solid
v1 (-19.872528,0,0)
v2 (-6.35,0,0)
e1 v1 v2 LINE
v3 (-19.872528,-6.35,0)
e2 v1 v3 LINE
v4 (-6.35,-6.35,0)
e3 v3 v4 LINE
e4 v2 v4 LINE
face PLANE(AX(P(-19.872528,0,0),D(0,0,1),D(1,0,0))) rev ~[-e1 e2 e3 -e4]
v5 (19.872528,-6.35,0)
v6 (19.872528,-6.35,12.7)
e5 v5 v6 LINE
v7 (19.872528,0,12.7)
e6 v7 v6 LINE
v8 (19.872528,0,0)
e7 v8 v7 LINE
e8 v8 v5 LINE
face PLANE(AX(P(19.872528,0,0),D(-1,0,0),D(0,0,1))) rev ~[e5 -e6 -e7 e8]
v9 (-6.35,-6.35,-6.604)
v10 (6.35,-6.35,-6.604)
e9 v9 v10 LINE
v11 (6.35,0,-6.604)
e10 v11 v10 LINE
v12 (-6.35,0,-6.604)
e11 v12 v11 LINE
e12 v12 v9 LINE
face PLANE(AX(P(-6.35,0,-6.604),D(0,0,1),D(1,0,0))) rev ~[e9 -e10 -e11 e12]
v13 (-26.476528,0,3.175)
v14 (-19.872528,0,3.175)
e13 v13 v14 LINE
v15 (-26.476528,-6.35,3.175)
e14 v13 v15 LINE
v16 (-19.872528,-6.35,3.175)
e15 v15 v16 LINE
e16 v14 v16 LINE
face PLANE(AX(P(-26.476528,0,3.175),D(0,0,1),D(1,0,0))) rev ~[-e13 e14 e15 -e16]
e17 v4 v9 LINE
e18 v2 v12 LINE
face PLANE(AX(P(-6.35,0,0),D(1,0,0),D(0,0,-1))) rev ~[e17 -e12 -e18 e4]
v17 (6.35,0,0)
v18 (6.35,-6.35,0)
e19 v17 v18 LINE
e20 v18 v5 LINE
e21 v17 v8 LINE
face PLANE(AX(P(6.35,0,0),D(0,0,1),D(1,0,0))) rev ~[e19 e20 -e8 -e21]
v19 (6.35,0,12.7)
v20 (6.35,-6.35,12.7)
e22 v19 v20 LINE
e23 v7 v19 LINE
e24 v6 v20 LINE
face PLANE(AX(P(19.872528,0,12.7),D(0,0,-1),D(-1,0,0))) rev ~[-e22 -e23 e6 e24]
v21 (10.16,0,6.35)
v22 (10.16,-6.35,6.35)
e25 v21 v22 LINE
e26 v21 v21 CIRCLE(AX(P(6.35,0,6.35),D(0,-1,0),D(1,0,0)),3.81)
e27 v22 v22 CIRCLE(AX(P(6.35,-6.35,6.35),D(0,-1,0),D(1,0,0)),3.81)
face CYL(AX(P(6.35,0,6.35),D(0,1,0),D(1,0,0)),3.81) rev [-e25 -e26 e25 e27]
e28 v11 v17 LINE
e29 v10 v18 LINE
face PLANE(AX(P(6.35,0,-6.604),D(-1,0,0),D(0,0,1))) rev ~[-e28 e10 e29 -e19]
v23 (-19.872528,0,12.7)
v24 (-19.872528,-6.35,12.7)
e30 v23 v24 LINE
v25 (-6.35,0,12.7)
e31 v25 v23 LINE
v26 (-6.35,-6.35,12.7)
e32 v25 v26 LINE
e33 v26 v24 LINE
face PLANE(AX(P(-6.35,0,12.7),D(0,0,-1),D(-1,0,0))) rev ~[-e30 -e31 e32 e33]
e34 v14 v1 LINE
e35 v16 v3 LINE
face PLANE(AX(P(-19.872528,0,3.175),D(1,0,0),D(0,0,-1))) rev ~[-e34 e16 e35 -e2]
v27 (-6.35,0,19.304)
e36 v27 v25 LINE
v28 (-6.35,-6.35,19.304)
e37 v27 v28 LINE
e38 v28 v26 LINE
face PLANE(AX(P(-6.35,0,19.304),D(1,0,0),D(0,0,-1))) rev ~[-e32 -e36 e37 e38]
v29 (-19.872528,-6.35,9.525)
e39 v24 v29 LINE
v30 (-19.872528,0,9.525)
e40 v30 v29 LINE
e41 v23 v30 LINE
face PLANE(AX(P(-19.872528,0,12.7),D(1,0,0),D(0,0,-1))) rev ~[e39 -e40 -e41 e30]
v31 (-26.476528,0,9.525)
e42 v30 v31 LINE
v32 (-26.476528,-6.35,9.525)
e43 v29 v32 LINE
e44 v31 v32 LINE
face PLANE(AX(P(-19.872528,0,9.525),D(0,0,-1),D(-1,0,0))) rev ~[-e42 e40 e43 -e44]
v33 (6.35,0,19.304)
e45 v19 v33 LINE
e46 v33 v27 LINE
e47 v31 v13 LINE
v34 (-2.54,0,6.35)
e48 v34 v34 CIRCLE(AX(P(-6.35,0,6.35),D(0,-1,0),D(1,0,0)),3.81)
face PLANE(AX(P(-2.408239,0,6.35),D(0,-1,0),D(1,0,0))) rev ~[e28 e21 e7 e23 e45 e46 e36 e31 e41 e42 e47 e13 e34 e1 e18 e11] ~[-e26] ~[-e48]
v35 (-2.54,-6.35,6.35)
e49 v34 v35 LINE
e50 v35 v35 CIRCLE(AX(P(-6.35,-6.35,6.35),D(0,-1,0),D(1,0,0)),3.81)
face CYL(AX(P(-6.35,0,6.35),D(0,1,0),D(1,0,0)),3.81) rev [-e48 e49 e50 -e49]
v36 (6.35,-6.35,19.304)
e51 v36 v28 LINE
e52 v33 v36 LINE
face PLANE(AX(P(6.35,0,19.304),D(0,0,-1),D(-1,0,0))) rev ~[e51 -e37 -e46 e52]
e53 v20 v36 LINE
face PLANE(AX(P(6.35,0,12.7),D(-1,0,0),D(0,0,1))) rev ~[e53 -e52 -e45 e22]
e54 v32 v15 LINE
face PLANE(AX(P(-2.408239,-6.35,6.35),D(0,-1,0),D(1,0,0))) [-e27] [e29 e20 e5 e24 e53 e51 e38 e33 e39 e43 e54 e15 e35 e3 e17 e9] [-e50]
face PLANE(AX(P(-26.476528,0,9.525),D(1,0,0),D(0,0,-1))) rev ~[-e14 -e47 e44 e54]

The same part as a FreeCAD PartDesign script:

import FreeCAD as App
import Part
import Sketcher
Q = App.Units.Quantity


def add_polygon(sketch, points):
    """Adds a closed chain of lines whose ends are joined by coincident constraints."""
    first, n = sketch.GeometryCount, len(points)
    for a, b in zip(points, points[1:] + points[:1]):
        sketch.addGeometry(Part.LineSegment(App.Vector(*a, 0), App.Vector(*b, 0)), False)
    for i in range(n):
        sketch.addConstraint(Sketcher.Constraint("Coincident", first + i, 2, first + (i + 1) % n, 1))

doc = App.newDocument("Part")
body = doc.addObject("PartDesign::Body", "Body")

# Sketch on XZ plane
sketch1 = body.newObject("Sketcher::SketchObject", "Sketch")
sketch1.AttachmentSupport = (doc.getObject("XZ_Plane"), [""])
sketch1.MapMode = "FlatFace"
add_polygon(sketch1, [(-19.872528, 0), (-6.35, 0), (-6.35, -6.604), (6.35, -6.604), (6.35, 0), (19.872528, 0), (19.872528, 12.7), (6.35, 12.7), (6.35, 19.304), (-6.35, 19.304), (-6.35, 12.7), (-19.872528, 12.7), (-19.872528, 9.525), (-26.476528, 9.525), (-26.476528, 3.175), (-19.872528, 3.175)])  # lines 0-15
sketch1.addGeometry(Part.Circle(App.Vector(-6.35, 6.35, 0), App.Vector(0, 0, 1), 3.81), False)  # 16
sketch1.addGeometry(Part.Circle(App.Vector(6.35, 6.35, 0), App.Vector(0, 0, 1), 3.81), False)  # 17
sketch1.addConstraint(Sketcher.Constraint("Horizontal", 0))
sketch1.addConstraint(Sketcher.Constraint("Vertical", 1))
sketch1.addConstraint(Sketcher.Constraint("Horizontal", 2))
sketch1.addConstraint(Sketcher.Constraint("Vertical", 3))
sketch1.addConstraint(Sketcher.Constraint("Horizontal", 4))
sketch1.addConstraint(Sketcher.Constraint("Vertical", 5))
sketch1.addConstraint(Sketcher.Constraint("Horizontal", 6))
sketch1.addConstraint(Sketcher.Constraint("Vertical", 7))
sketch1.addConstraint(Sketcher.Constraint("Horizontal", 8))
sketch1.addConstraint(Sketcher.Constraint("Vertical", 9))
sketch1.addConstraint(Sketcher.Constraint("Horizontal", 10))
sketch1.addConstraint(Sketcher.Constraint("Vertical", 11))
sketch1.addConstraint(Sketcher.Constraint("Horizontal", 12))
sketch1.addConstraint(Sketcher.Constraint("Vertical", 13))
sketch1.addConstraint(Sketcher.Constraint("Horizontal", 14))
sketch1.addConstraint(Sketcher.Constraint("Vertical", 15))
sketch1.addConstraint(Sketcher.Constraint("Equal", 16, 17))
sketch1.addConstraint(Sketcher.Constraint("Symmetric", 0, 2, 3, 2, -1, 1))
sketch1.addConstraint(Sketcher.Constraint("Symmetric", 16, 3, 17, 3, -2))
sketch1.addConstraint(Sketcher.Constraint("Symmetric", 6, 2, 9, 2, -2))
sketch1.addConstraint(Sketcher.Constraint("Symmetric", 4, 2, 15, 2, -2))
sketch1.addConstraint(Sketcher.Constraint("Vertical", 16, 3, 0, 2))
sketch1.addConstraint(Sketcher.Constraint("Vertical", 3, 2, 6, 2))
sketch1.addConstraint(Sketcher.Constraint("Vertical", 11, 2, 14, 2))
sketch1.addConstraint(Sketcher.Constraint("Equal", 14, 1))
sketch1.addConstraint(Sketcher.Constraint("Equal", 8, 5))
sketch1.addConstraint(Sketcher.Constraint("Equal", 3, 7))
sketch1.addConstraint(Sketcher.Constraint("Equal", 11, 15))
sketch1.addConstraint(Sketcher.Constraint("Diameter", 16, Q("0.3 in")))
sketch1.addConstraint(Sketcher.Constraint("DistanceX", 2, 1, 2, 2, Q("0.5 in")))
sketch1.addConstraint(Sketcher.Constraint("DistanceX", 12, 2, 12, 1, Q("0.26 in")))
sketch1.addConstraint(Sketcher.Constraint("DistanceY", 13, 2, 13, 1, Q("0.25 in")))
sketch1.addConstraint(Sketcher.Constraint("DistanceY", -1, 1, 16, 3, Q("0.25 in")))
sketch1.addConstraint(Sketcher.Constraint("DistanceX", 0, 1, 0, 2, Q("13.522528 mm")))
pad1 = body.newObject("PartDesign::Pad", "Pad")
pad1.Profile = sketch1
pad1.Length = Q("0.25 in")

doc.recompute()
